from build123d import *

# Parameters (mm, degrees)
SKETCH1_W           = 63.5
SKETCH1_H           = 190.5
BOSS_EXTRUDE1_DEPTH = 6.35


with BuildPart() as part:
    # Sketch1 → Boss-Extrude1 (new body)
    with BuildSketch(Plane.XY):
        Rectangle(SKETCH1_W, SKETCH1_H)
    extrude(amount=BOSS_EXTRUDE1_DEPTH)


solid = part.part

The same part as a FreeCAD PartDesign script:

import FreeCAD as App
import Part
import Sketcher

V = App.Vector
Q = App.Units.Quantity


def add_polygon(sketch, points):
    """Adds a closed chain of lines whose ends are joined by coincident constraints."""
    first, n = sketch.GeometryCount, len(points)
    for a, b in zip(points, points[1:] + points[:1]):
        sketch.addGeometry(Part.LineSegment(App.Vector(*a, 0), App.Vector(*b, 0)), False)
    for i in range(n):
        sketch.addConstraint(Sketcher.Constraint("Coincident", first + i, 2, first + (i + 1) % n, 1))

doc = App.newDocument("Part")
body = doc.addObject("PartDesign::Body", "Body")

# Sketch on XY plane
sketch1 = body.newObject("Sketcher::SketchObject", "Sketch")
sketch1.AttachmentSupport = (doc.getObject("XY_Plane"), [""])
sketch1.MapMode = "FlatFace"
add_polygon(sketch1, [(-31.75, 95.25), (-31.75, -95.25), (31.75, -95.25), (31.75, 95.25)])  # lines 0-3
sketch1.addConstraint([
    Sketcher.Constraint("Vertical", 0),
    Sketcher.Constraint("Horizontal", 1),
    Sketcher.Constraint("Vertical", 2),
    Sketcher.Constraint("Horizontal", 3),
    Sketcher.Constraint("Symmetric", 0, 2, 2, 2, -1, 1),
    Sketcher.Constraint("DistanceX", 1, 1, 1, 2, Q("2.5 in")),
    Sketcher.Constraint("DistanceY", 0, 2, 0, 1, Q("7.5 in")),
])
pad1 = body.newObject("PartDesign::Pad", "Pad")
pad1.Profile = sketch1
pad1.Length = Q("0.25 in")

doc.recompute()
